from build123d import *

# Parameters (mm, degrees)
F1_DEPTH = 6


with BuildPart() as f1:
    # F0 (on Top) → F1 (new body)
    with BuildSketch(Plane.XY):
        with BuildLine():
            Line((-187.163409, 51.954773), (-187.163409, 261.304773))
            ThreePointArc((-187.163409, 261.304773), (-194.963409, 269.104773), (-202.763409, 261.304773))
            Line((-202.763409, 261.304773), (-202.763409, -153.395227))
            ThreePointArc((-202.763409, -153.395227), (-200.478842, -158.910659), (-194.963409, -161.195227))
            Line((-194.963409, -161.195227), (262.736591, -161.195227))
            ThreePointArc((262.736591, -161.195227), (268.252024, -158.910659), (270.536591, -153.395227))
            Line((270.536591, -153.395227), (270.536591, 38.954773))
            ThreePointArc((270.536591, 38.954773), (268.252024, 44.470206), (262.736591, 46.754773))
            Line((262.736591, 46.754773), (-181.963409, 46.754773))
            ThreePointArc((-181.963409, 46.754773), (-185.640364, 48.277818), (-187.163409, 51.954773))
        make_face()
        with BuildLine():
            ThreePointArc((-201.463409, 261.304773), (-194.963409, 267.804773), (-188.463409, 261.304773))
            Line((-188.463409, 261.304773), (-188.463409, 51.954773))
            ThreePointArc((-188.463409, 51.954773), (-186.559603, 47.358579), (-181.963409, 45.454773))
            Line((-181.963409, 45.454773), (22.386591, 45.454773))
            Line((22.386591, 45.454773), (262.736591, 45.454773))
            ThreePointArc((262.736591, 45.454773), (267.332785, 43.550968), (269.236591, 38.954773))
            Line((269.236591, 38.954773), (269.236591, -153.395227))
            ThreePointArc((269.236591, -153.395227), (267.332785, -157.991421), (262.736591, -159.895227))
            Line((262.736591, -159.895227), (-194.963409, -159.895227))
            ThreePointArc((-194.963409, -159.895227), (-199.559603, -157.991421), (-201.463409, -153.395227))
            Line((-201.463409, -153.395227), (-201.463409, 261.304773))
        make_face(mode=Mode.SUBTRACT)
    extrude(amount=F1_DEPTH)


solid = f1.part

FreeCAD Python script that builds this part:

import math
import FreeCAD as App
import Part
import Sketcher

V = App.Vector

doc = App.newDocument("Part")
body = doc.addObject("PartDesign::Body", "Body")

sketch1 = body.newObject("Sketcher::SketchObject", "Sketch")
sketch1.AttachmentSupport = (doc.getObject("XY_Plane"), [""])
sketch1.MapMode = "FlatFace"
sketch1.addGeometry(Part.LineSegment(V(-187, 52, 0), V(-187, 261, 0)), False)
sketch1.addGeometry(Part.ArcOfCircle(Part.Circle(V(-195, 261, 0), V(0, 0, 1), 8), math.radians(0), math.radians(180)), False)
sketch1.addGeometry(Part.LineSegment(V(-203, 261, 0), V(-203, -153, 0)), False)
sketch1.addGeometry(Part.ArcOfCircle(Part.Circle(V(-195, -153, 0), V(0, 0, 1), 8), math.radians(-180), math.radians(-90)), False)
sketch1.addGeometry(Part.LineSegment(V(-195, -161, 0), V(263, -161, 0)), False)
sketch1.addGeometry(Part.ArcOfCircle(Part.Circle(V(263, -153, 0), V(0, 0, 1), 8), math.radians(-90), math.radians(0)), False)
sketch1.addGeometry(Part.LineSegment(V(271, -153, 0), V(271, 39, 0)), False)
sketch1.addGeometry(Part.ArcOfCircle(Part.Circle(V(263, 39, 0), V(0, 0, 1), 8), math.radians(0), math.radians(90)), False)
sketch1.addGeometry(Part.LineSegment(V(263, 47, 0), V(-182, 47, 0)), False)
sketch1.addGeometry(Part.ArcOfCircle(Part.Circle(V(-182, 52, 0), V(0, 0, 1), 5), math.radians(-180), math.radians(-90)), False)
sketch1.addGeometry(Part.LineSegment(V(-201, -153, 0), V(-201, 261, 0)), False)
sketch1.addGeometry(Part.ArcOfCircle(Part.Circle(V(-195, 261, 0), V(0, 0, 1), 6), math.radians(0), math.radians(180)), False)
sketch1.addGeometry(Part.LineSegment(V(-188, 261, 0), V(-188, 52, 0)), False)
sketch1.addGeometry(Part.ArcOfCircle(Part.Circle(V(-182, 52, 0), V(0, 0, 1), 7), math.radians(-180), math.radians(-90)), False)
sketch1.addGeometry(Part.LineSegment(V(-182, 45, 0), V(263, 45, 0)), False)
sketch1.addGeometry(Part.ArcOfCircle(Part.Circle(V(263, 39, 0), V(0, 0, 1), 6), math.radians(0), math.radians(90)), False)
sketch1.addGeometry(Part.LineSegment(V(269, 39, 0), V(269, -153, 0)), False)
sketch1.addGeometry(Part.ArcOfCircle(Part.Circle(V(263, -153, 0), V(0, 0, 1), 7), math.radians(-90), math.radians(0)), False)
sketch1.addGeometry(Part.LineSegment(V(263, -160, 0), V(-195, -160, 0)), False)
sketch1.addGeometry(Part.ArcOfCircle(Part.Circle(V(-195, -153, 0), V(0, 0, 1), 7), math.radians(-180), math.radians(-90)), False)
sketch1.addConstraint(Sketcher.Constraint("Tangent", 0, 2, 1, 1))
sketch1.addConstraint(Sketcher.Constraint("Tangent", 1, 2, 2, 1))
sketch1.addConstraint(Sketcher.Constraint("Tangent", 2, 2, 3, 1))
sketch1.addConstraint(Sketcher.Constraint("Tangent", 3, 2, 4, 1))
sketch1.addConstraint(Sketcher.Constraint("Tangent", 4, 2, 5, 1))
sketch1.addConstraint(Sketcher.Constraint("Tangent", 5, 2, 6, 1))
sketch1.addConstraint(Sketcher.Constraint("Tangent", 6, 2, 7, 1))
sketch1.addConstraint(Sketcher.Constraint("Tangent", 7, 2, 8, 1))
sketch1.addConstraint(Sketcher.Constraint("Tangent", 8, 2, 9, 2))
sketch1.addConstraint(Sketcher.Constraint("Tangent", 9, 1, 0, 1))
sketch1.addConstraint(Sketcher.Constraint("Tangent", 10, 2, 11, 2))
sketch1.addConstraint(Sketcher.Constraint("Tangent", 11, 1, 12, 1))
sketch1.addConstraint(Sketcher.Constraint("Tangent", 12, 2, 13, 1))
sketch1.addConstraint(Sketcher.Constraint("Tangent", 13, 2, 14, 1))
sketch1.addConstraint(Sketcher.Constraint("Tangent", 14, 2, 15, 2))
sketch1.addConstraint(Sketcher.Constraint("Tangent", 15, 1, 16, 1))
sketch1.addConstraint(Sketcher.Constraint("Tangent", 16, 2, 17, 2))
sketch1.addConstraint(Sketcher.Constraint("Tangent", 17, 1, 18, 1))
sketch1.addConstraint(Sketcher.Constraint("Tangent", 18, 2, 19, 2))
sketch1.addConstraint(Sketcher.Constraint("Tangent", 19, 1, 10, 1))
sketch1.addConstraint(Sketcher.Constraint("Vertical", 0))
sketch1.addConstraint(Sketcher.Constraint("Vertical", 2))
sketch1.addConstraint(Sketcher.Constraint("Horizontal", 4))
sketch1.addConstraint(Sketcher.Constraint("Vertical", 6))
sketch1.addConstraint(Sketcher.Constraint("Horizontal", 8))
sketch1.addConstraint(Sketcher.Constraint("Vertical", 10))
sketch1.addConstraint(Sketcher.Constraint("Vertical", 12))
sketch1.addConstraint(Sketcher.Constraint("Horizontal", 14))
sketch1.addConstraint(Sketcher.Constraint("Vertical", 16))
sketch1.addConstraint(Sketcher.Constraint("Horizontal", 18))
sketch1.addConstraint(Sketcher.Constraint("Coincident", 11, 3, 1, 3))
sketch1.addConstraint(Sketcher.Constraint("Coincident", 13, 3, 9, 3))
sketch1.addConstraint(Sketcher.Constraint("Coincident", 15, 3, 7, 3))
sketch1.addConstraint(Sketcher.Constraint("Coincident", 17, 3, 5, 3))
sketch1.addConstraint(Sketcher.Constraint("Equal", 1, 3))
sketch1.addConstraint(Sketcher.Constraint("Equal", 3, 5))
sketch1.addConstraint(Sketcher.Constraint("Equal", 5, 7))
sketch1.addConstraint(Sketcher.Constraint("Equal", 11, 13))
sketch1.addConstraint(Sketcher.Constraint("Equal", 17, 19))
sketch1.addConstraint(Sketcher.Constraint("Radius", 1, 7.8))
sketch1.addConstraint(Sketcher.Constraint("Radius", 9, 5.200001))
sketch1.addConstraint(Sketcher.Constraint("DistanceX", 4, 1, 4, 2, 457.7))
sketch1.addConstraint(Sketcher.Constraint("DistanceY", 2, 2, 2, 1, 414.7))
sketch1.addConstraint(Sketcher.Constraint("DistanceY", 0, 1, 0, 2, 209.35))
sketch1.addConstraint(Sketcher.Constraint("DistanceX", 1, 3, -1, 1, 194.963409))
sketch1.addConstraint(Sketcher.Constraint("DistanceY", -1, 1, 1, 3, 261.304773))
pad1 = body.newObject("PartDesign::Pad", "Pad")
pad1.Profile = sketch1
pad1.Length = 6

doc.recompute()
